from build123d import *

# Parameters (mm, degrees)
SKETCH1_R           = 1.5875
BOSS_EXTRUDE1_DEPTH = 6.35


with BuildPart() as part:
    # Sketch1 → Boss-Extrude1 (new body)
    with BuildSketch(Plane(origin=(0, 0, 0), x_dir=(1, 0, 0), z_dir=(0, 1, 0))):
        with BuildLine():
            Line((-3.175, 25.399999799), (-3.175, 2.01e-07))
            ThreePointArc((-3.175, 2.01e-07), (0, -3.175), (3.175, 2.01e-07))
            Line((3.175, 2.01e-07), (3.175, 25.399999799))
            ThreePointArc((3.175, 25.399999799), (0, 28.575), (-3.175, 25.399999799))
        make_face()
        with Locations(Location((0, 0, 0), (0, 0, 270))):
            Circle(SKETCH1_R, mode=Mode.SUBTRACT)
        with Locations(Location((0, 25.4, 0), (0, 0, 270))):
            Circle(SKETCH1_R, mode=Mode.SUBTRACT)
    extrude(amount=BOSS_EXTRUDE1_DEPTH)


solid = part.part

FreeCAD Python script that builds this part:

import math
import FreeCAD as App
import Part
import Sketcher

V = App.Vector
Q = App.Units.Quantity

doc = App.newDocument("Part")
body = doc.addObject("PartDesign::Body", "Body")

sketch1 = body.newObject("Sketcher::SketchObject", "Sketch")
sketch1.AttachmentSupport = (doc.getObject("XZ_Plane"), [""])
sketch1.MapMode = "FlatFace"
sketch1.addGeometry([
    Part.LineSegment(V(-3.2, -25.4, 0), V(-3.2, 0, 0)),
    Part.ArcOfCircle(Part.Circle(V(0, 0, 0), V(0, 0, 1), 3.2), math.radians(0), math.radians(180)),
    Part.LineSegment(V(3.2, 0, 0), V(3.2, -25.4, 0)),
    Part.ArcOfCircle(Part.Circle(V(0, -25.4, 0), V(0, 0, 1), 3.2), math.radians(180), math.radians(360)),
    Part.Circle(V(0, 0, 0), V(0, 0, 1), 1.6),
    Part.Circle(V(0, -25.4, 0), V(0, 0, 1), 1.6),
], False)
sketch1.addConstraint([
    Sketcher.Constraint("Tangent", 0, 2, 1, 2),
    Sketcher.Constraint("Tangent", 1, 1, 2, 1),
    Sketcher.Constraint("Tangent", 2, 2, 3, 2),
    Sketcher.Constraint("Tangent", 3, 1, 0, 1),
    Sketcher.Constraint("Vertical", 0),
    Sketcher.Constraint("Vertical", 2),
    Sketcher.Constraint("Coincident", 1, 3, -1, 1),
    Sketcher.Constraint("Coincident", 4, 3, -1, 1),
    Sketcher.Constraint("Coincident", 5, 3, 3, 3),
    Sketcher.Constraint("Equal", 4, 5),
    Sketcher.Constraint("DistanceY", 0, 1, 0, 2, Q("1 in")),
    Sketcher.Constraint("Diameter", 4, Q("0.125 in")),
    Sketcher.Constraint("Radius", 1, Q("0.125 in")),
])
pad1 = body.newObject("PartDesign::Pad", "Pad")
pad1.Profile = sketch1
pad1.Length = Q("0.25 in")
pad1.Reversed = True

doc.recompute()
